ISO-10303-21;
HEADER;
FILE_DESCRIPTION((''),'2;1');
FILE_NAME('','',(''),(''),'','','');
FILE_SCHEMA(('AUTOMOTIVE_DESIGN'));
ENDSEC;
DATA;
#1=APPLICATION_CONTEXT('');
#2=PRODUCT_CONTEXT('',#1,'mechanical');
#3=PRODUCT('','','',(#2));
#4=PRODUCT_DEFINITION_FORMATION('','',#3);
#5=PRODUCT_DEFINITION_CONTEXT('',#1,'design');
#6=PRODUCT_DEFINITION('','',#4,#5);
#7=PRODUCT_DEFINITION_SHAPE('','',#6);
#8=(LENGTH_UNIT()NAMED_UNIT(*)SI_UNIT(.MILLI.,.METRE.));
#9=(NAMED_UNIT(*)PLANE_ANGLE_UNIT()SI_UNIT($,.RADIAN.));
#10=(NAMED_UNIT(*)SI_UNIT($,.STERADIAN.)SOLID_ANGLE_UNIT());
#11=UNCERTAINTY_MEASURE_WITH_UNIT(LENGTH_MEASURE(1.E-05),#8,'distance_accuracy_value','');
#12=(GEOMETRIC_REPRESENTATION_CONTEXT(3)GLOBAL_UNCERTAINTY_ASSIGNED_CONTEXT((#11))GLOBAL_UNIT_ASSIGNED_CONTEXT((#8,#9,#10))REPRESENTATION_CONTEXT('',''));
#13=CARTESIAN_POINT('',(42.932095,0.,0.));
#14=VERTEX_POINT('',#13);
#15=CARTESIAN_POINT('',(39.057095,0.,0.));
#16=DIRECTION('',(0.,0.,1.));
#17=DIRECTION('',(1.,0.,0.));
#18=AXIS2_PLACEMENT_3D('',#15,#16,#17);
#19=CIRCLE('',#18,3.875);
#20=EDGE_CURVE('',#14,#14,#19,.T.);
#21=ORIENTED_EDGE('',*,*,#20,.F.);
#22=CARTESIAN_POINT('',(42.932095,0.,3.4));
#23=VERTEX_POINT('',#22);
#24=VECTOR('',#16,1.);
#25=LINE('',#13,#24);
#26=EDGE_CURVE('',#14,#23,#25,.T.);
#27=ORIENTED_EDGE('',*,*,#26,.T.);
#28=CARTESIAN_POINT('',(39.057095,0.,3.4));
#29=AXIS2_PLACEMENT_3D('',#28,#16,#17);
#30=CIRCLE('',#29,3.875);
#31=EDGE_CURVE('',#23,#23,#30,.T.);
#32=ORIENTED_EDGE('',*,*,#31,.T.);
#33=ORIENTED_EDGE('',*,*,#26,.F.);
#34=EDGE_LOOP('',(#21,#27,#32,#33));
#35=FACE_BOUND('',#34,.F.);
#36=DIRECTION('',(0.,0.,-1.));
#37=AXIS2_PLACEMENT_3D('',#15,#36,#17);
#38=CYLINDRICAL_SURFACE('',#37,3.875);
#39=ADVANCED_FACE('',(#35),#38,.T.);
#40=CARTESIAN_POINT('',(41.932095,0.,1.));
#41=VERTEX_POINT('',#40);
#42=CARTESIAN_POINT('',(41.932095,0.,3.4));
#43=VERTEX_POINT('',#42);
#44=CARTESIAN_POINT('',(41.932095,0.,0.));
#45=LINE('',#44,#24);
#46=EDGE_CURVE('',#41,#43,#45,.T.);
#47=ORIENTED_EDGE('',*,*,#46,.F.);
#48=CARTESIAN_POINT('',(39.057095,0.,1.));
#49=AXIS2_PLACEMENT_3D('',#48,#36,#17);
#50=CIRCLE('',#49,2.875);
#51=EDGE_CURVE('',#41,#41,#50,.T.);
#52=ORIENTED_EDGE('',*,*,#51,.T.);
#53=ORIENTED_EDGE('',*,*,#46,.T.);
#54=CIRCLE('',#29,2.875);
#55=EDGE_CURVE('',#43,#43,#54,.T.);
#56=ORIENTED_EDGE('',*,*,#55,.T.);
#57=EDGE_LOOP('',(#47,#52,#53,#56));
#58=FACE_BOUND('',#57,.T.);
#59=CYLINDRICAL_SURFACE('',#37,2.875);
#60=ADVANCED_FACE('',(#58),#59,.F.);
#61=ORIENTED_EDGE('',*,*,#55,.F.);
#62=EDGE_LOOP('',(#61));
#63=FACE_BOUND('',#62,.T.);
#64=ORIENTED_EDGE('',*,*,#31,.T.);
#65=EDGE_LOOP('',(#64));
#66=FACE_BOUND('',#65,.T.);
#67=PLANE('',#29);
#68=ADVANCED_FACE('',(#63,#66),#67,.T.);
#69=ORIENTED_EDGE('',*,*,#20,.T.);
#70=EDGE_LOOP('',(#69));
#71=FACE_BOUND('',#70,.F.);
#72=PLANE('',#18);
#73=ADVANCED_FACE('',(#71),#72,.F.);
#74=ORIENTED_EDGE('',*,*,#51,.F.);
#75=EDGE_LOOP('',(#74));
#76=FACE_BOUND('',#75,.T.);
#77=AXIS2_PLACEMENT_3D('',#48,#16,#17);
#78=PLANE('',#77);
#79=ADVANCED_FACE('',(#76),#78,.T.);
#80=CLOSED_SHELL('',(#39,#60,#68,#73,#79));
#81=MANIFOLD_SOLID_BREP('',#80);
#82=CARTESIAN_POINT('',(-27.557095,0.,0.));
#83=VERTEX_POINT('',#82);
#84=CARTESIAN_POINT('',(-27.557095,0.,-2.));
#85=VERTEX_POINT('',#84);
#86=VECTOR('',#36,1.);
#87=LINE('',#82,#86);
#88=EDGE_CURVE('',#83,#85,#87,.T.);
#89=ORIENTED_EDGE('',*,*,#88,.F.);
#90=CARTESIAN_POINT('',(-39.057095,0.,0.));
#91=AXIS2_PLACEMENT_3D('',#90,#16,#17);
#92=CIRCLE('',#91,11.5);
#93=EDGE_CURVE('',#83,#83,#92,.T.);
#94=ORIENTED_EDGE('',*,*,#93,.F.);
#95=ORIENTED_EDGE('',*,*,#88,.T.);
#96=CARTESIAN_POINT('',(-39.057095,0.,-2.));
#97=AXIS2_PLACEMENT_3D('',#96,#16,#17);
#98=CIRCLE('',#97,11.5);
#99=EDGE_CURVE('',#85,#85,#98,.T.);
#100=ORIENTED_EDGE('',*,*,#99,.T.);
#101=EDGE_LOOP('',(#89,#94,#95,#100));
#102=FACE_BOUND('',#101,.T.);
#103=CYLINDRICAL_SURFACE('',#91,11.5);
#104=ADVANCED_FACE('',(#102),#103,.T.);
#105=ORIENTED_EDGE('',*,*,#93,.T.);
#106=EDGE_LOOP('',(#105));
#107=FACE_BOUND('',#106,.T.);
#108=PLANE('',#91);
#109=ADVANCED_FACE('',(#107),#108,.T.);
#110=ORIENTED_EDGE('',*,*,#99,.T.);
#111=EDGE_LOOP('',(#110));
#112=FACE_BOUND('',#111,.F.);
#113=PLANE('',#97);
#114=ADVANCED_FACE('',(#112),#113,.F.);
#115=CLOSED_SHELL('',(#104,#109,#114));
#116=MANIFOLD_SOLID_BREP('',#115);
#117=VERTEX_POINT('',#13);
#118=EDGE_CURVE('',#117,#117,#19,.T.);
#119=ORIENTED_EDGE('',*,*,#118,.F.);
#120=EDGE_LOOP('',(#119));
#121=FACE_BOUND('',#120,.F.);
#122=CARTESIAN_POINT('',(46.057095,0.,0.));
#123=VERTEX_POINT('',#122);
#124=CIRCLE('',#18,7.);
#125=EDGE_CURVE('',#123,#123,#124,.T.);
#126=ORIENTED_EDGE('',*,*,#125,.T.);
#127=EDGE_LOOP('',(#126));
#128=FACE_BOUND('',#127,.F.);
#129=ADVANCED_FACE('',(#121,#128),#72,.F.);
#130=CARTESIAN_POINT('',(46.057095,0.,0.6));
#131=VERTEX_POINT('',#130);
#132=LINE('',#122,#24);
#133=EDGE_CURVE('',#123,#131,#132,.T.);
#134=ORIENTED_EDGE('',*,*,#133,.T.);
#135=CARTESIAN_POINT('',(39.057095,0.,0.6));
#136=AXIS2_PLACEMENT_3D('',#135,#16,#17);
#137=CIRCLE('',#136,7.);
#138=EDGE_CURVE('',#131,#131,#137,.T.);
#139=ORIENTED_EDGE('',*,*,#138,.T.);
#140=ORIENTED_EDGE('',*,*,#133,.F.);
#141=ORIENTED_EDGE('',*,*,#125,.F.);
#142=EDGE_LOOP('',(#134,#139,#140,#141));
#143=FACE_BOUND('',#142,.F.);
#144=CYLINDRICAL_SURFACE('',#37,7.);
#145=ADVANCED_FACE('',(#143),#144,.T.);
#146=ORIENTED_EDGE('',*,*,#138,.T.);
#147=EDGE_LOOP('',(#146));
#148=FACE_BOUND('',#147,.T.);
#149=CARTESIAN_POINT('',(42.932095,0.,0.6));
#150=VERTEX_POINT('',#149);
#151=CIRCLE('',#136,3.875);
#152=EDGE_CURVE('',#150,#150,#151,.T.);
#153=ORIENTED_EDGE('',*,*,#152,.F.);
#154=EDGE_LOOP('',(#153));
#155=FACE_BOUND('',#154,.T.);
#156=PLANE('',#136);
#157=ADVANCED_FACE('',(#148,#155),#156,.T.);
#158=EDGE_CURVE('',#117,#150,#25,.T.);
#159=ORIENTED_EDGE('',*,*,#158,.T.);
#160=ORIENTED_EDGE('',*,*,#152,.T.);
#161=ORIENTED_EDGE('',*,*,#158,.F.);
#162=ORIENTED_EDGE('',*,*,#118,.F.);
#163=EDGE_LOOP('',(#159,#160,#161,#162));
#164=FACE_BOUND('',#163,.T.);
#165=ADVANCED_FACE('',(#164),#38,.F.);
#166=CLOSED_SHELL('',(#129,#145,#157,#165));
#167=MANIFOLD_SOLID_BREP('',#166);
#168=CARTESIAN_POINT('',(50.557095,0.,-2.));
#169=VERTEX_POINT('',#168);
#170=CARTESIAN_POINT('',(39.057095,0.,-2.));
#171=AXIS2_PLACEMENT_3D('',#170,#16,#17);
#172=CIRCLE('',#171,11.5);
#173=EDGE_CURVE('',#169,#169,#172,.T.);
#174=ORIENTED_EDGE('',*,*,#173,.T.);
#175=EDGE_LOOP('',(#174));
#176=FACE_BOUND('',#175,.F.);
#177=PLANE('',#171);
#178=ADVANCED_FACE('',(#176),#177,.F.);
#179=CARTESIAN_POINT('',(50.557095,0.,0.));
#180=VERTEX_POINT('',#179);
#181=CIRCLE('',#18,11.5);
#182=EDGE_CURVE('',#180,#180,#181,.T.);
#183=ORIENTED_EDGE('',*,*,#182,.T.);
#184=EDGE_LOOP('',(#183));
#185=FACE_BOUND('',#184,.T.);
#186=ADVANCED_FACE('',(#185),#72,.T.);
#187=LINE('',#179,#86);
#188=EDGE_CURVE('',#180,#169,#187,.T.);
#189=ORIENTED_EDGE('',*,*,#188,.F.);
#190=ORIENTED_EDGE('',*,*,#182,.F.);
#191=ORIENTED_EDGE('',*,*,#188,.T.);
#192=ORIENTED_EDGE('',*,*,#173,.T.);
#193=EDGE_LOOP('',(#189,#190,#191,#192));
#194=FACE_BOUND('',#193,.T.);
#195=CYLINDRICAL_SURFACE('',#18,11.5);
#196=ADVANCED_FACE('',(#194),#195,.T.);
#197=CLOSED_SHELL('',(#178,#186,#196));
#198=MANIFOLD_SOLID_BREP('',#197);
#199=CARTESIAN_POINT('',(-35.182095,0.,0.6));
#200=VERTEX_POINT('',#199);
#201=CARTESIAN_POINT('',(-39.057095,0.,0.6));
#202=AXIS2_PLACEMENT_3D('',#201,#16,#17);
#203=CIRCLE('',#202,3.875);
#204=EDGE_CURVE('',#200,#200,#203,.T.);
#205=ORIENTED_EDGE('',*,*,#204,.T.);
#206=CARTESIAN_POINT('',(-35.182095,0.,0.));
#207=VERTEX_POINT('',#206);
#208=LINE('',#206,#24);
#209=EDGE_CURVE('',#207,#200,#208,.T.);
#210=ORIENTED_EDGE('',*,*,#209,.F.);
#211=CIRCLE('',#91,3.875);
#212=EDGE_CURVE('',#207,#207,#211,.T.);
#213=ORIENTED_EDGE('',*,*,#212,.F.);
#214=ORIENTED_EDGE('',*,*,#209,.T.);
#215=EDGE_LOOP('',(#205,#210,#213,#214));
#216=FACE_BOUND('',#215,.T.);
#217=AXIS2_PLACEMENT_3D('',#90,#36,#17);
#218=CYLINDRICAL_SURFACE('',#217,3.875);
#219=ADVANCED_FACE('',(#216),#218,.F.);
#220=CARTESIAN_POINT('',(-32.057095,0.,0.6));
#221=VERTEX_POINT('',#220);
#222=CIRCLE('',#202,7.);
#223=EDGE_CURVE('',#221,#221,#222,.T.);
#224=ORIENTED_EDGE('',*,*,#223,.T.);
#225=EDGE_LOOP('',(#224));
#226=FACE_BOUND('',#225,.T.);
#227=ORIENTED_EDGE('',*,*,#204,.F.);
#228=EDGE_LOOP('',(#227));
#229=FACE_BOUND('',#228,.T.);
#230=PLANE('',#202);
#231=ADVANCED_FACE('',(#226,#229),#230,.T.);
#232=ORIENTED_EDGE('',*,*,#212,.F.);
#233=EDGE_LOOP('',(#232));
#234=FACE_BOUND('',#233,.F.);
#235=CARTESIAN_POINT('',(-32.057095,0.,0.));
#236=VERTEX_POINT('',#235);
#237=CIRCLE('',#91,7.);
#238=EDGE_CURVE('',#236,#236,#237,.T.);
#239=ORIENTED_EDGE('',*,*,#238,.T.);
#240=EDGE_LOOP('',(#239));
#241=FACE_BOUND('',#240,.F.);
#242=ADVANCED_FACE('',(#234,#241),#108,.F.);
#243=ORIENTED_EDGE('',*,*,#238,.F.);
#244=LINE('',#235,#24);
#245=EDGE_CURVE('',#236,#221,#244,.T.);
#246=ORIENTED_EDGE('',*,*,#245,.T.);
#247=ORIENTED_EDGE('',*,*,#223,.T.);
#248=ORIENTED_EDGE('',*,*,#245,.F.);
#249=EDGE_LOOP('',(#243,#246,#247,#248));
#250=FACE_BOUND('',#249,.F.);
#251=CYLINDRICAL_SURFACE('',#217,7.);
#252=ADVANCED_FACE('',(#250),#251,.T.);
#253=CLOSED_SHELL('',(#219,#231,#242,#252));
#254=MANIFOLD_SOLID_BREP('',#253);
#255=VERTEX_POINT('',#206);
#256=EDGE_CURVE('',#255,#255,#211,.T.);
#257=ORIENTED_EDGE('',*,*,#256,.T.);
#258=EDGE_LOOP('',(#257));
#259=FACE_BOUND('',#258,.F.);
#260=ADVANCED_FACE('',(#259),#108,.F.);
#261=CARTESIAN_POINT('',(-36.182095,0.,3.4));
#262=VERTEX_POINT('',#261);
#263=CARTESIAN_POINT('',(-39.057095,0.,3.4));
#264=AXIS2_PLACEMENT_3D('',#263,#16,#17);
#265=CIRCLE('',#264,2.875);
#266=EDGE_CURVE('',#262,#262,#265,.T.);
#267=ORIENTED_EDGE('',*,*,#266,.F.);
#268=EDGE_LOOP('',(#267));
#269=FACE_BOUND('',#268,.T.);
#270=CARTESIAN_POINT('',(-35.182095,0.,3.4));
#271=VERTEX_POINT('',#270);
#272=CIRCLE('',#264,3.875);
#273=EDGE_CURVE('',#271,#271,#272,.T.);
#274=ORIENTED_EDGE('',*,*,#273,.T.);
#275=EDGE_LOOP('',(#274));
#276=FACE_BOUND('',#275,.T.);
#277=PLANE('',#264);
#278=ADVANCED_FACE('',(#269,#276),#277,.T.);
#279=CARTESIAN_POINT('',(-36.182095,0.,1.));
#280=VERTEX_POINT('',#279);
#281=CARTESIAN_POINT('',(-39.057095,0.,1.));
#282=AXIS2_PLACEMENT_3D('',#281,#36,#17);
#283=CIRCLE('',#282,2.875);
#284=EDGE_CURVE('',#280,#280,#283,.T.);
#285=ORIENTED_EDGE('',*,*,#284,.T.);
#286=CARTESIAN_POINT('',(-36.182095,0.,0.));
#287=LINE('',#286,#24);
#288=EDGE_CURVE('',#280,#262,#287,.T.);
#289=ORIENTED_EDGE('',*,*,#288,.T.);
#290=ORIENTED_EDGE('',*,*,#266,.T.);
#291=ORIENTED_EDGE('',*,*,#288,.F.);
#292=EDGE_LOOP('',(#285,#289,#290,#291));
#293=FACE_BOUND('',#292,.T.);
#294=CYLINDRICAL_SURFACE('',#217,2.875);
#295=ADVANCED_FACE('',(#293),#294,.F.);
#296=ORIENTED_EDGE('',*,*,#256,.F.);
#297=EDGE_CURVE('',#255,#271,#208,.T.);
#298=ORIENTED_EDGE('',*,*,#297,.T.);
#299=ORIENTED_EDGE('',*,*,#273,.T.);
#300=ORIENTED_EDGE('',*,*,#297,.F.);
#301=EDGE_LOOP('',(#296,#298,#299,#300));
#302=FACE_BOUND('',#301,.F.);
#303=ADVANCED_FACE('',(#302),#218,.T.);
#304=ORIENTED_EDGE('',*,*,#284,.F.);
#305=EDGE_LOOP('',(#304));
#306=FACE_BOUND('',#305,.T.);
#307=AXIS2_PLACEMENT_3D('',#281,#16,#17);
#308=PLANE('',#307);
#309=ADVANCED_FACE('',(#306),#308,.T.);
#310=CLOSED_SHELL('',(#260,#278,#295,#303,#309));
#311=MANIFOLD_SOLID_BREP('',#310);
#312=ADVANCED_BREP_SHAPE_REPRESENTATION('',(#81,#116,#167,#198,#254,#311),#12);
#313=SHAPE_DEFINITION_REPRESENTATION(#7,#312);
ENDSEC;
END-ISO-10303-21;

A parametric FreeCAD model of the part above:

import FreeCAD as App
import Part
import Sketcher
from FreeCAD import Vector
Q = App.Units.Quantity


def faces_at(feature, points):
    """Names of the faces that lie closest to the given points."""
    faces = feature.Shape.Faces
    near = lambda p: min(range(len(faces)), key=lambda i: faces[i].distToShape(Part.Vertex(*p))[0])
    return sorted({f"Face{near(p) + 1}" for p in points})

doc = App.newDocument("Part")
params = doc.addObject("Spreadsheet::Sheet", "Params")
for row, (alias, value) in enumerate([
    ("sketch1_diameter", "7.75 mm"),
    ("pad1_length", "3.4 mm"),
    ("thickness_wall", "1 mm"),
    ("sketch2_diameter", "7.75 mm"),
    ("pad2_length", "3.4 mm"),
    ("thickness2_wall", "1 mm"),
    ("sketch3_diameter", "14 mm"),
    ("sketch3_diameter2", "7.75 mm"),
    ("pad3_length", "0.6 mm"),
    ("sketch4_diameter", "14 mm"),
    ("sketch4_diameter2", "7.75 mm"),
    ("pad4_length", "0.6 mm"),
    ("sketch5_diameter", "23 mm"),
    ("pad5_length", "2 mm"),
    ("sketch6_diameter", "23 mm"),
    ("pad6_length", "2 mm"),
], start=1):
    params.set(f"A{row}", alias)
    params.set(f"B{row}", "=" + value)
    params.setAlias(f"B{row}", alias)

body = doc.addObject("PartDesign::Body", "Body")

# Sketch on XY plane
sketch1 = body.newObject("Sketcher::SketchObject", "Sketch")
sketch1.AttachmentSupport = (doc.getObject("XY_Plane"), [""])
sketch1.MapMode = "FlatFace"
sketch1.addGeometry(Part.Circle(Vector(-39.1, 0, 0), Vector(0, 0, 1), 3.9), False)
sketch1.addConstraint(Sketcher.Constraint("PointOnObject", 0, 3, -1))
sketch1.addConstraint(Sketcher.Constraint("Diameter", 0, Q("7.75 mm")))
sketch1.addConstraint(Sketcher.Constraint("DistanceX", 0, 3, -1, 1, Q("39.057095 mm")))
sketch1.setExpression("Constraints[1]", "Params.sketch1_diameter")
pad1 = body.newObject("PartDesign::Pad", "Pad")
pad1.Profile = sketch1
pad1.setExpression("Length", "Params.pad1_length")
doc.recompute()

thickness = body.newObject("PartDesign::Thickness", "Thickness")
thickness.Base = (pad1, faces_at(pad1, [(-39.057, 0, 3.4)]))
thickness.setExpression("Value", "Params.thickness_wall")
thickness.Reversed = True
thickness.Join = "Arc"
body2 = doc.addObject("PartDesign::Body", "Body001")

# Sketch on XY plane
sketch2 = body2.newObject("Sketcher::SketchObject", "Sketch001")
sketch2.AttachmentSupport = (doc.getObject("XY_Plane001"), [""])
sketch2.MapMode = "FlatFace"
sketch2.addGeometry(Part.Circle(Vector(39.1, 0, 0), Vector(0, 0, 1), 3.9), False)
sketch2.addConstraint(Sketcher.Constraint("PointOnObject", 0, 3, -1))
sketch2.addConstraint(Sketcher.Constraint("Diameter", 0, Q("7.75 mm")))
sketch2.addConstraint(Sketcher.Constraint("DistanceX", -1, 1, 0, 3, Q("39.057095 mm")))
sketch2.setExpression("Constraints[1]", "Params.sketch2_diameter")
pad2 = body2.newObject("PartDesign::Pad", "Pad001")
pad2.Profile = sketch2
pad2.setExpression("Length", "Params.pad2_length")
doc.recompute()

thickness2 = body2.newObject("PartDesign::Thickness", "Thickness001")
thickness2.Base = (pad2, faces_at(pad2, [(39.057, 0, 3.4)]))
thickness2.setExpression("Value", "Params.thickness2_wall")
thickness2.Reversed = True
thickness2.Join = "Arc"
body3 = doc.addObject("PartDesign::Body", "Body002")

# Sketch on XY plane
sketch3 = body3.newObject("Sketcher::SketchObject", "Sketch002")
sketch3.AttachmentSupport = (doc.getObject("XY_Plane002"), [""])
sketch3.MapMode = "FlatFace"
sketch3.addGeometry(Part.Circle(Vector(-39.1, 0, 0), Vector(0, 0, 1), 7), False)
sketch3.addGeometry(Part.Circle(Vector(-39.1, 0, 0), Vector(0, 0, 1), 3.9), False)
sketch3.addConstraint(Sketcher.Constraint("Coincident", 1, 3, 0, 3))
sketch3.addConstraint(Sketcher.Constraint("PointOnObject", 0, 3, -1))
sketch3.addConstraint(Sketcher.Constraint("Diameter", 0, Q("14 mm")))
sketch3.addConstraint(Sketcher.Constraint("Diameter", 1, Q("7.75 mm")))
sketch3.addConstraint(Sketcher.Constraint("DistanceX", 0, 3, -1, 1, Q("39.057095 mm")))
sketch3.setExpression("Constraints[2]", "Params.sketch3_diameter")
sketch3.setExpression("Constraints[3]", "Params.sketch3_diameter2")
pad3 = body3.newObject("PartDesign::Pad", "Pad002")
pad3.Profile = sketch3
pad3.setExpression("Length", "Params.pad3_length")
body4 = doc.addObject("PartDesign::Body", "Body003")

# Sketch on XY plane
sketch4 = body4.newObject("Sketcher::SketchObject", "Sketch003")
sketch4.AttachmentSupport = (doc.getObject("XY_Plane003"), [""])
sketch4.MapMode = "FlatFace"
sketch4.addGeometry(Part.Circle(Vector(39.1, 0, 0), Vector(0, 0, 1), 7), False)
sketch4.addGeometry(Part.Circle(Vector(39.1, 0, 0), Vector(0, 0, 1), 3.9), False)
sketch4.addConstraint(Sketcher.Constraint("Coincident", 1, 3, 0, 3))
sketch4.addConstraint(Sketcher.Constraint("PointOnObject", 0, 3, -1))
sketch4.addConstraint(Sketcher.Constraint("Diameter", 0, Q("14 mm")))
sketch4.addConstraint(Sketcher.Constraint("Diameter", 1, Q("7.75 mm")))
sketch4.addConstraint(Sketcher.Constraint("DistanceX", -1, 1, 0, 3, Q("39.057095 mm")))
sketch4.setExpression("Constraints[2]", "Params.sketch4_diameter")
sketch4.setExpression("Constraints[3]", "Params.sketch4_diameter2")
pad4 = body4.newObject("PartDesign::Pad", "Pad003")
pad4.Profile = sketch4
pad4.setExpression("Length", "Params.pad4_length")
body5 = doc.addObject("PartDesign::Body", "Body004")

# Sketch on XY plane
sketch5 = body5.newObject("Sketcher::SketchObject", "Sketch004")
sketch5.AttachmentSupport = (doc.getObject("XY_Plane004"), [""])
sketch5.MapMode = "FlatFace"
sketch5.addGeometry(Part.Circle(Vector(-39, 0, 0), Vector(0, 0, 1), 12), False)
sketch5.addConstraint(Sketcher.Constraint("PointOnObject", 0, 3, -1))
sketch5.addConstraint(Sketcher.Constraint("Diameter", 0, Q("23 mm")))
sketch5.addConstraint(Sketcher.Constraint("DistanceX", 0, 3, -1, 1, Q("39.057095 mm")))
sketch5.setExpression("Constraints[1]", "Params.sketch5_diameter")
pad5 = body5.newObject("PartDesign::Pad", "Pad004")
pad5.Profile = sketch5
pad5.setExpression("Length", "Params.pad5_length")
pad5.Reversed = True
body6 = doc.addObject("PartDesign::Body", "Body005")

# Sketch on XY plane
sketch6 = body6.newObject("Sketcher::SketchObject", "Sketch005")
sketch6.AttachmentSupport = (doc.getObject("XY_Plane005"), [""])
sketch6.MapMode = "FlatFace"
sketch6.addGeometry(Part.Circle(Vector(39, 0, 0), Vector(0, 0, 1), 12), False)
sketch6.addConstraint(Sketcher.Constraint("PointOnObject", 0, 3, -1))
sketch6.addConstraint(Sketcher.Constraint("Diameter", 0, Q("23 mm")))
sketch6.addConstraint(Sketcher.Constraint("DistanceX", -1, 1, 0, 3, Q("39.057095 mm")))
sketch6.setExpression("Constraints[1]", "Params.sketch6_diameter")
pad6 = body6.newObject("PartDesign::Pad", "Pad005")
pad6.Profile = sketch6
pad6.setExpression("Length", "Params.pad6_length")
pad6.Reversed = True

doc.recompute()
